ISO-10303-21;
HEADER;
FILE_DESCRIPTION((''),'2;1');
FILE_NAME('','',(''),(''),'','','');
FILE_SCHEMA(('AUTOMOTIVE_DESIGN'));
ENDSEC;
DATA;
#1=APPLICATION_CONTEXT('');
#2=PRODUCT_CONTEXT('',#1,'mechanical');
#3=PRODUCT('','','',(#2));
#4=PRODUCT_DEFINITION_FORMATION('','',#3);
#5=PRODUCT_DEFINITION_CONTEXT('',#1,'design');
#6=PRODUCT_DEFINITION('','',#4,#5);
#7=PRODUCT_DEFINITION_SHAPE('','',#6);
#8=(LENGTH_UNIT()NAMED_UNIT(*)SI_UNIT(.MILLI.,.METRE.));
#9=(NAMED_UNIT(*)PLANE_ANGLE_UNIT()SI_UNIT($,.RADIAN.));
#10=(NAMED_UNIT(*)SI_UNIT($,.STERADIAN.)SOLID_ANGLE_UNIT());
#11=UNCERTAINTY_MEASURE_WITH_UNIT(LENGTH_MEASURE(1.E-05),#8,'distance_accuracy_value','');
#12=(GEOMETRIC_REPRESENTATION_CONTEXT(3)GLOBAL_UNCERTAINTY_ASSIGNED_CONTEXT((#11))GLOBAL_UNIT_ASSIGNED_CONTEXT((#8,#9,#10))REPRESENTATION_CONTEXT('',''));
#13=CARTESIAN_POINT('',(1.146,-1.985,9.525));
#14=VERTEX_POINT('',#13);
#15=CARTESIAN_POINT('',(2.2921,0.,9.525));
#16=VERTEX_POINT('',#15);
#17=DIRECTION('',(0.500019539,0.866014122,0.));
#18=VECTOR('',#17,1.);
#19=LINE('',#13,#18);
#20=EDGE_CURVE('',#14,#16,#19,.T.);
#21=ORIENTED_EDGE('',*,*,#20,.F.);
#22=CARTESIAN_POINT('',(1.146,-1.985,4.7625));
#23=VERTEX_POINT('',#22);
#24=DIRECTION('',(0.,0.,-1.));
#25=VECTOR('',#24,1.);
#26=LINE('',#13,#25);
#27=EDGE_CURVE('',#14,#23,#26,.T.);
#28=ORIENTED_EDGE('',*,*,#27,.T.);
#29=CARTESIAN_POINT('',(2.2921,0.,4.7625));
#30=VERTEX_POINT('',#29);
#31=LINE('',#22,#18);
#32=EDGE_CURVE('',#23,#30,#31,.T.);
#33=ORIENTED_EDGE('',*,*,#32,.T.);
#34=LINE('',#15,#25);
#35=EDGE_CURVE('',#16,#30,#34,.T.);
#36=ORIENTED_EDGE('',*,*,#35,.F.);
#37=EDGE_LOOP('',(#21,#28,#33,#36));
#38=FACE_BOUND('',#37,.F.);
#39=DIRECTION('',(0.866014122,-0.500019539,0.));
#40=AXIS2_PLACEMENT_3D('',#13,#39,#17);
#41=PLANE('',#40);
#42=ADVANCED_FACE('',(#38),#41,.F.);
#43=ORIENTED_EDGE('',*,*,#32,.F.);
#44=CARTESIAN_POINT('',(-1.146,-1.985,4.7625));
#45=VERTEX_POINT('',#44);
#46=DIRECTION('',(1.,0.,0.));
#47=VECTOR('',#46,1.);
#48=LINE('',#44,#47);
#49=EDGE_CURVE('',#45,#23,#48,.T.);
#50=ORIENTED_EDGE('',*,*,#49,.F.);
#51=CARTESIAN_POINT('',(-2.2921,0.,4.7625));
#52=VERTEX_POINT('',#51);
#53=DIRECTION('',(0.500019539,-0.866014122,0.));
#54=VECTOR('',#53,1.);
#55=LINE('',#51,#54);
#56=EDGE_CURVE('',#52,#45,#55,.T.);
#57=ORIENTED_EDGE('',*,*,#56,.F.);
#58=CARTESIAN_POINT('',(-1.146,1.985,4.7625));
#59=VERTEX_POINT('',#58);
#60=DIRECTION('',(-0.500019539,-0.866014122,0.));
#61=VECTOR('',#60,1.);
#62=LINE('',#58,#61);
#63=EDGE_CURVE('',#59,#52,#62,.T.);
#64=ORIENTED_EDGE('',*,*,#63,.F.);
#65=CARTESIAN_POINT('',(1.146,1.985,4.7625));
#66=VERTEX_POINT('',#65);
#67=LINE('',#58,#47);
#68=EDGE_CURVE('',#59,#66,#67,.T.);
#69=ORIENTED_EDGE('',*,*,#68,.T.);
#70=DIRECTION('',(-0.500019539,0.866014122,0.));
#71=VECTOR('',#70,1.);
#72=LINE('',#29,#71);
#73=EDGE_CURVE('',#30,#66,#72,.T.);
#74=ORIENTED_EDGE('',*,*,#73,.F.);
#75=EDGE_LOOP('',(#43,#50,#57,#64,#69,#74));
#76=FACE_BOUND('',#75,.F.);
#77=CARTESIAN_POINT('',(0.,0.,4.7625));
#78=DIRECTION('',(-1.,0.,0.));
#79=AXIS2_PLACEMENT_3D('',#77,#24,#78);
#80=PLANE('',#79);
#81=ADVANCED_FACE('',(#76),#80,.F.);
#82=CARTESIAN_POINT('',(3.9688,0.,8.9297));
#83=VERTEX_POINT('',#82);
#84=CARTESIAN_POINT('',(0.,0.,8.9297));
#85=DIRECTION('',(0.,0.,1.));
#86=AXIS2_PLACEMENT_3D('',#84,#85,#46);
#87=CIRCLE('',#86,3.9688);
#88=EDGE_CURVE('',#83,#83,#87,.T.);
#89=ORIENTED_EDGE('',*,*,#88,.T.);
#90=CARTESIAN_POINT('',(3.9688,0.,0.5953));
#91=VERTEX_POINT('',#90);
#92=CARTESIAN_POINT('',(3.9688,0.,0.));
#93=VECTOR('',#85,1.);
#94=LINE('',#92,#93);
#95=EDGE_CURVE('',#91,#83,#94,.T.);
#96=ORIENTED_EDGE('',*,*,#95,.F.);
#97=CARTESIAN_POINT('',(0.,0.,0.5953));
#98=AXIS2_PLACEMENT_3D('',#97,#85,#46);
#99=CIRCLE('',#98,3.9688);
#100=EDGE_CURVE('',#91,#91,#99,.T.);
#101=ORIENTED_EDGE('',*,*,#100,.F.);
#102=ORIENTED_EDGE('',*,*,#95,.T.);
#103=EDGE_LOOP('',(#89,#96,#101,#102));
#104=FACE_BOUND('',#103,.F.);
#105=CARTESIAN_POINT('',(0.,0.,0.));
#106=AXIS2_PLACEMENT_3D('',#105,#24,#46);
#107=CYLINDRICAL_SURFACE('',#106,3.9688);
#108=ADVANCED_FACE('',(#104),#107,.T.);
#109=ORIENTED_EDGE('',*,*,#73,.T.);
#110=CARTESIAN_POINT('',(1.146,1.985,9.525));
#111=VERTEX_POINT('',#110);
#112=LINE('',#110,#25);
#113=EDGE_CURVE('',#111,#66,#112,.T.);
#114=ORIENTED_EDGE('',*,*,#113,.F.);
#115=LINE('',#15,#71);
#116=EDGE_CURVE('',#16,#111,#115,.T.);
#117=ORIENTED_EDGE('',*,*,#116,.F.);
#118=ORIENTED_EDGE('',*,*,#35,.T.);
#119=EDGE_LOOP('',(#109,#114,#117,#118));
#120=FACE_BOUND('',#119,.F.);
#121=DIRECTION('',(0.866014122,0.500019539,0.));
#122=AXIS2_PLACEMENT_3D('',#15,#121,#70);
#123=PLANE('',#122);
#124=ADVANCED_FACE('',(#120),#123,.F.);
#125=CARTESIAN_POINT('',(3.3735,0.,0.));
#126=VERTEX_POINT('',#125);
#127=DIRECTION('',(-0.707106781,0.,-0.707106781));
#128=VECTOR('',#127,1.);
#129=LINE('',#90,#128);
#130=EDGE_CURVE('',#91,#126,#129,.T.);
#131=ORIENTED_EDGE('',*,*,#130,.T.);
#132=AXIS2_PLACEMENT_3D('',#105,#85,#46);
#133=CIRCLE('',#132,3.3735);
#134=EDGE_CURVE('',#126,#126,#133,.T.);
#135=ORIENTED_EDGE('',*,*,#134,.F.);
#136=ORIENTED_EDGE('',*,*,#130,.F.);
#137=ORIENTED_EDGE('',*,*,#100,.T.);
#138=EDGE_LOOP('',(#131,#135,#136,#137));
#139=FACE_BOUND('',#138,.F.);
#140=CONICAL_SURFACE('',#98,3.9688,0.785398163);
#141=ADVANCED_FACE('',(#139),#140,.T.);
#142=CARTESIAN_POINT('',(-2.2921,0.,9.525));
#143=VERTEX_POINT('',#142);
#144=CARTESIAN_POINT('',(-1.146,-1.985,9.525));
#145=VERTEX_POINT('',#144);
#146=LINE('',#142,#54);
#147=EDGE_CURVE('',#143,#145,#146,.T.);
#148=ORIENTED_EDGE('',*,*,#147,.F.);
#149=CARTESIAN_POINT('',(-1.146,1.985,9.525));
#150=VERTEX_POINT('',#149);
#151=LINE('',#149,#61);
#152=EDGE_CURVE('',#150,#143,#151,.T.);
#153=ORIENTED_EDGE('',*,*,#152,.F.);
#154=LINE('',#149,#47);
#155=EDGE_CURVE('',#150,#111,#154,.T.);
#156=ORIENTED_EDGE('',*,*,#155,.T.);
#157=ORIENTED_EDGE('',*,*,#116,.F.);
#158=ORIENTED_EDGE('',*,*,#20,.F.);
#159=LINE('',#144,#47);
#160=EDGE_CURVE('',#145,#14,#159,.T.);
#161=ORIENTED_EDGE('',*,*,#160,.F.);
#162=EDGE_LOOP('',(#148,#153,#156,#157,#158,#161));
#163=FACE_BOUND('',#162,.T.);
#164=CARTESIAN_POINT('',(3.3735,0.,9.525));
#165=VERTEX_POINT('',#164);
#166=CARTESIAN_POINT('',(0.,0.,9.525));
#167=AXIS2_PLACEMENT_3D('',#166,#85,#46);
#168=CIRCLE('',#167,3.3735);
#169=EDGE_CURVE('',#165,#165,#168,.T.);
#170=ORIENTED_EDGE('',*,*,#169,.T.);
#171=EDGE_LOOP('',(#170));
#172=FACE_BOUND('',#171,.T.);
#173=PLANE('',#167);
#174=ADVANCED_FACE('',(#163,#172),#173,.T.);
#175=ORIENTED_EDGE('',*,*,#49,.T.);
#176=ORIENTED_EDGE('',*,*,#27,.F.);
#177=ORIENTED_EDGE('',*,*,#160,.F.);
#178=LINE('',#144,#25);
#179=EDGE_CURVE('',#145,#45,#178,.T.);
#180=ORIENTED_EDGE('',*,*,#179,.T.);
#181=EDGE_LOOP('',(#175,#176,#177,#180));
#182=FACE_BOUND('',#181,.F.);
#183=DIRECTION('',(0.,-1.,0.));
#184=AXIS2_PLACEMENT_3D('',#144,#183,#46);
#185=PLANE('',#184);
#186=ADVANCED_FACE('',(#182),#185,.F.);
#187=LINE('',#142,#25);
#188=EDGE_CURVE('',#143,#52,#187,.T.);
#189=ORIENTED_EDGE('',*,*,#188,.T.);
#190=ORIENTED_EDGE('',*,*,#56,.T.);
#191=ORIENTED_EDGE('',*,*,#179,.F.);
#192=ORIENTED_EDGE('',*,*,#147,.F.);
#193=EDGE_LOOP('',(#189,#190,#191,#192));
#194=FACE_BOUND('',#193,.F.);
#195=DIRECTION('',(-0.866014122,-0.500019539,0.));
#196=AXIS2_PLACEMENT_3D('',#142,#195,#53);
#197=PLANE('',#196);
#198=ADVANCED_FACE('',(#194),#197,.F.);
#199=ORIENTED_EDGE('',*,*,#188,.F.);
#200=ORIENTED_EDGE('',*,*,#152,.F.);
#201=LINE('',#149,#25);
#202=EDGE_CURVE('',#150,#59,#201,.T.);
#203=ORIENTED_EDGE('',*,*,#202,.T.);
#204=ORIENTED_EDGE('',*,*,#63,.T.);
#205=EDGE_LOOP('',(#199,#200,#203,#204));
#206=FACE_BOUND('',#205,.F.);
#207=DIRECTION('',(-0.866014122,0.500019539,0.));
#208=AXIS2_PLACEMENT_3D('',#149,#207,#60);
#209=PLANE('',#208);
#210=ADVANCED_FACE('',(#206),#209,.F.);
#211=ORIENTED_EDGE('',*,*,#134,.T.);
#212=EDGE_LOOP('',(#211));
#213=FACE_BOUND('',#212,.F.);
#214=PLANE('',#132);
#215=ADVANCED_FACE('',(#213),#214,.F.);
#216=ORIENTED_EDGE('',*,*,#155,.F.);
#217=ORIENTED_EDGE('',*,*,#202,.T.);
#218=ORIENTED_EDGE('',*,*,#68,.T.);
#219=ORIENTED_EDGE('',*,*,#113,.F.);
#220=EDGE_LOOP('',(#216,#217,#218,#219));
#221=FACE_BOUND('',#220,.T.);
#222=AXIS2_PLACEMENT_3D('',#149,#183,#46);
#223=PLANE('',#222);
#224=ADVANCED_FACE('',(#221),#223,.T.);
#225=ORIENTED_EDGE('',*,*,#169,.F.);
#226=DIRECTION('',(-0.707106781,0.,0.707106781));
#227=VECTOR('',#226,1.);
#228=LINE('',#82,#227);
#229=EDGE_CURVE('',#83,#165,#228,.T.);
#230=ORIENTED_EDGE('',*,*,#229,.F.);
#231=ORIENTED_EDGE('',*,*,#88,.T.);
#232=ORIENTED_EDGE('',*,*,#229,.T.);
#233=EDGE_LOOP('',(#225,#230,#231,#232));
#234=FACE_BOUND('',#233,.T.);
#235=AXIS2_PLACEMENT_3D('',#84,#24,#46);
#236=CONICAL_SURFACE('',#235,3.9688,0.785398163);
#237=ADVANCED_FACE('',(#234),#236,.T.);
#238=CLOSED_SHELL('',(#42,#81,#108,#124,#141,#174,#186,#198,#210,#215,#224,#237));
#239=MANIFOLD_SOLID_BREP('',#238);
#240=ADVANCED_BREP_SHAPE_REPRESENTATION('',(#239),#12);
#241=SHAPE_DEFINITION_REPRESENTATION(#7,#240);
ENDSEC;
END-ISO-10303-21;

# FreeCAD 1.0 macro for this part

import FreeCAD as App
import Part
import Sketcher
Q = App.Units.Quantity


def edges_at(feature, points):
    """Names of the edges that pass closest to the given points."""
    edges = feature.Shape.Edges
    near = lambda p: min(range(len(edges)), key=lambda i: edges[i].distToShape(Part.Vertex(*p))[0])
    return sorted({f"Edge{near(p) + 1}" for p in points})


def add_polygon(sketch, points):
    """Adds a closed chain of lines whose ends are joined by coincident constraints."""
    first, n = sketch.GeometryCount, len(points)
    for a, b in zip(points, points[1:] + points[:1]):
        sketch.addGeometry(Part.LineSegment(App.Vector(*a, 0), App.Vector(*b, 0)), False)
    for i in range(n):
        sketch.addConstraint(Sketcher.Constraint("Coincident", first + i, 2, first + (i + 1) % n, 1))

doc = App.newDocument("Part")
body = doc.addObject("PartDesign::Body", "Body")

# Sketch on XY plane
sketch1 = doc.addObject("Sketcher::SketchObject", "Sketch")
body.addObject(sketch1)
sketch1.AttachmentSupport = (doc.XY_Plane, [""])
sketch1.MapMode = "FlatFace"
sketch1.addGeometry(Part.Circle(App.Vector(0, 0, 0), App.Vector(0, 0, 1), 3.9688), False)
sketch1.addConstraint([
    Sketcher.Constraint("Coincident", 0, 3, -1, 1),
    Sketcher.Constraint("Diameter", 0, Q("0.3125 in")),
])
pad1 = doc.addObject("PartDesign::Pad", "Pad")
body.addObject(pad1)
pad1.Profile = sketch1
pad1.Length = Q("0.375 in")
doc.recompute()

chamfer = doc.addObject("PartDesign::Chamfer", "Chamfer")
body.addObject(chamfer)
chamfer.Base = (pad1, edges_at(pad1, [(-3.969, 0, 0), (-3.969, 0, 9.525)]))
chamfer.Size = 0.5953

# Sketch on XY plane
sketch2 = doc.addObject("Sketcher::SketchObject", "Sketch001")
body.addObject(sketch2)
sketch2.AttachmentSupport = (doc.XY_Plane, [""])
sketch2.MapMode = "FlatFace"
sketch2.AttachmentOffset = App.Placement(App.Vector(0, 0, 0.375 * 25.4), App.Rotation())
add_polygon(sketch2, [(1.146, 1.985), (-1.146, 1.985), (-2.2921, 0), (-1.146, -1.985), (1.146, -1.985), (2.2921, 0)])  # lines 0-5
sketch2.addConstraint([
    Sketcher.Constraint("Horizontal", 0),
    Sketcher.Constraint("Horizontal", 3),
    Sketcher.Constraint("Symmetric", 0, 2, 3, 2, -1, 1),
    Sketcher.Constraint("Symmetric", 1, 2, 4, 2, -1, 1),
    Sketcher.Constraint("PointOnObject", 1, 2, -1),
    Sketcher.Constraint("Parallel", 2, 5),
    Sketcher.Constraint("Vertical", 0, 2, 2, 2),
    Sketcher.Constraint("DistanceX", 0, 2, 0, 1, Q("2.292 mm")),
    Sketcher.Constraint("DistanceY", 2, 2, 0, 2, Q("0.1563 in")),
    Sketcher.Constraint("Distance", 1, Q("2.292 mm")),
])
pocket1 = doc.addObject("PartDesign::Pocket", "Pocket")
body.addObject(pocket1)
pocket1.Profile = sketch2
pocket1.Length = Q("0.1875 in")

doc.recompute()
